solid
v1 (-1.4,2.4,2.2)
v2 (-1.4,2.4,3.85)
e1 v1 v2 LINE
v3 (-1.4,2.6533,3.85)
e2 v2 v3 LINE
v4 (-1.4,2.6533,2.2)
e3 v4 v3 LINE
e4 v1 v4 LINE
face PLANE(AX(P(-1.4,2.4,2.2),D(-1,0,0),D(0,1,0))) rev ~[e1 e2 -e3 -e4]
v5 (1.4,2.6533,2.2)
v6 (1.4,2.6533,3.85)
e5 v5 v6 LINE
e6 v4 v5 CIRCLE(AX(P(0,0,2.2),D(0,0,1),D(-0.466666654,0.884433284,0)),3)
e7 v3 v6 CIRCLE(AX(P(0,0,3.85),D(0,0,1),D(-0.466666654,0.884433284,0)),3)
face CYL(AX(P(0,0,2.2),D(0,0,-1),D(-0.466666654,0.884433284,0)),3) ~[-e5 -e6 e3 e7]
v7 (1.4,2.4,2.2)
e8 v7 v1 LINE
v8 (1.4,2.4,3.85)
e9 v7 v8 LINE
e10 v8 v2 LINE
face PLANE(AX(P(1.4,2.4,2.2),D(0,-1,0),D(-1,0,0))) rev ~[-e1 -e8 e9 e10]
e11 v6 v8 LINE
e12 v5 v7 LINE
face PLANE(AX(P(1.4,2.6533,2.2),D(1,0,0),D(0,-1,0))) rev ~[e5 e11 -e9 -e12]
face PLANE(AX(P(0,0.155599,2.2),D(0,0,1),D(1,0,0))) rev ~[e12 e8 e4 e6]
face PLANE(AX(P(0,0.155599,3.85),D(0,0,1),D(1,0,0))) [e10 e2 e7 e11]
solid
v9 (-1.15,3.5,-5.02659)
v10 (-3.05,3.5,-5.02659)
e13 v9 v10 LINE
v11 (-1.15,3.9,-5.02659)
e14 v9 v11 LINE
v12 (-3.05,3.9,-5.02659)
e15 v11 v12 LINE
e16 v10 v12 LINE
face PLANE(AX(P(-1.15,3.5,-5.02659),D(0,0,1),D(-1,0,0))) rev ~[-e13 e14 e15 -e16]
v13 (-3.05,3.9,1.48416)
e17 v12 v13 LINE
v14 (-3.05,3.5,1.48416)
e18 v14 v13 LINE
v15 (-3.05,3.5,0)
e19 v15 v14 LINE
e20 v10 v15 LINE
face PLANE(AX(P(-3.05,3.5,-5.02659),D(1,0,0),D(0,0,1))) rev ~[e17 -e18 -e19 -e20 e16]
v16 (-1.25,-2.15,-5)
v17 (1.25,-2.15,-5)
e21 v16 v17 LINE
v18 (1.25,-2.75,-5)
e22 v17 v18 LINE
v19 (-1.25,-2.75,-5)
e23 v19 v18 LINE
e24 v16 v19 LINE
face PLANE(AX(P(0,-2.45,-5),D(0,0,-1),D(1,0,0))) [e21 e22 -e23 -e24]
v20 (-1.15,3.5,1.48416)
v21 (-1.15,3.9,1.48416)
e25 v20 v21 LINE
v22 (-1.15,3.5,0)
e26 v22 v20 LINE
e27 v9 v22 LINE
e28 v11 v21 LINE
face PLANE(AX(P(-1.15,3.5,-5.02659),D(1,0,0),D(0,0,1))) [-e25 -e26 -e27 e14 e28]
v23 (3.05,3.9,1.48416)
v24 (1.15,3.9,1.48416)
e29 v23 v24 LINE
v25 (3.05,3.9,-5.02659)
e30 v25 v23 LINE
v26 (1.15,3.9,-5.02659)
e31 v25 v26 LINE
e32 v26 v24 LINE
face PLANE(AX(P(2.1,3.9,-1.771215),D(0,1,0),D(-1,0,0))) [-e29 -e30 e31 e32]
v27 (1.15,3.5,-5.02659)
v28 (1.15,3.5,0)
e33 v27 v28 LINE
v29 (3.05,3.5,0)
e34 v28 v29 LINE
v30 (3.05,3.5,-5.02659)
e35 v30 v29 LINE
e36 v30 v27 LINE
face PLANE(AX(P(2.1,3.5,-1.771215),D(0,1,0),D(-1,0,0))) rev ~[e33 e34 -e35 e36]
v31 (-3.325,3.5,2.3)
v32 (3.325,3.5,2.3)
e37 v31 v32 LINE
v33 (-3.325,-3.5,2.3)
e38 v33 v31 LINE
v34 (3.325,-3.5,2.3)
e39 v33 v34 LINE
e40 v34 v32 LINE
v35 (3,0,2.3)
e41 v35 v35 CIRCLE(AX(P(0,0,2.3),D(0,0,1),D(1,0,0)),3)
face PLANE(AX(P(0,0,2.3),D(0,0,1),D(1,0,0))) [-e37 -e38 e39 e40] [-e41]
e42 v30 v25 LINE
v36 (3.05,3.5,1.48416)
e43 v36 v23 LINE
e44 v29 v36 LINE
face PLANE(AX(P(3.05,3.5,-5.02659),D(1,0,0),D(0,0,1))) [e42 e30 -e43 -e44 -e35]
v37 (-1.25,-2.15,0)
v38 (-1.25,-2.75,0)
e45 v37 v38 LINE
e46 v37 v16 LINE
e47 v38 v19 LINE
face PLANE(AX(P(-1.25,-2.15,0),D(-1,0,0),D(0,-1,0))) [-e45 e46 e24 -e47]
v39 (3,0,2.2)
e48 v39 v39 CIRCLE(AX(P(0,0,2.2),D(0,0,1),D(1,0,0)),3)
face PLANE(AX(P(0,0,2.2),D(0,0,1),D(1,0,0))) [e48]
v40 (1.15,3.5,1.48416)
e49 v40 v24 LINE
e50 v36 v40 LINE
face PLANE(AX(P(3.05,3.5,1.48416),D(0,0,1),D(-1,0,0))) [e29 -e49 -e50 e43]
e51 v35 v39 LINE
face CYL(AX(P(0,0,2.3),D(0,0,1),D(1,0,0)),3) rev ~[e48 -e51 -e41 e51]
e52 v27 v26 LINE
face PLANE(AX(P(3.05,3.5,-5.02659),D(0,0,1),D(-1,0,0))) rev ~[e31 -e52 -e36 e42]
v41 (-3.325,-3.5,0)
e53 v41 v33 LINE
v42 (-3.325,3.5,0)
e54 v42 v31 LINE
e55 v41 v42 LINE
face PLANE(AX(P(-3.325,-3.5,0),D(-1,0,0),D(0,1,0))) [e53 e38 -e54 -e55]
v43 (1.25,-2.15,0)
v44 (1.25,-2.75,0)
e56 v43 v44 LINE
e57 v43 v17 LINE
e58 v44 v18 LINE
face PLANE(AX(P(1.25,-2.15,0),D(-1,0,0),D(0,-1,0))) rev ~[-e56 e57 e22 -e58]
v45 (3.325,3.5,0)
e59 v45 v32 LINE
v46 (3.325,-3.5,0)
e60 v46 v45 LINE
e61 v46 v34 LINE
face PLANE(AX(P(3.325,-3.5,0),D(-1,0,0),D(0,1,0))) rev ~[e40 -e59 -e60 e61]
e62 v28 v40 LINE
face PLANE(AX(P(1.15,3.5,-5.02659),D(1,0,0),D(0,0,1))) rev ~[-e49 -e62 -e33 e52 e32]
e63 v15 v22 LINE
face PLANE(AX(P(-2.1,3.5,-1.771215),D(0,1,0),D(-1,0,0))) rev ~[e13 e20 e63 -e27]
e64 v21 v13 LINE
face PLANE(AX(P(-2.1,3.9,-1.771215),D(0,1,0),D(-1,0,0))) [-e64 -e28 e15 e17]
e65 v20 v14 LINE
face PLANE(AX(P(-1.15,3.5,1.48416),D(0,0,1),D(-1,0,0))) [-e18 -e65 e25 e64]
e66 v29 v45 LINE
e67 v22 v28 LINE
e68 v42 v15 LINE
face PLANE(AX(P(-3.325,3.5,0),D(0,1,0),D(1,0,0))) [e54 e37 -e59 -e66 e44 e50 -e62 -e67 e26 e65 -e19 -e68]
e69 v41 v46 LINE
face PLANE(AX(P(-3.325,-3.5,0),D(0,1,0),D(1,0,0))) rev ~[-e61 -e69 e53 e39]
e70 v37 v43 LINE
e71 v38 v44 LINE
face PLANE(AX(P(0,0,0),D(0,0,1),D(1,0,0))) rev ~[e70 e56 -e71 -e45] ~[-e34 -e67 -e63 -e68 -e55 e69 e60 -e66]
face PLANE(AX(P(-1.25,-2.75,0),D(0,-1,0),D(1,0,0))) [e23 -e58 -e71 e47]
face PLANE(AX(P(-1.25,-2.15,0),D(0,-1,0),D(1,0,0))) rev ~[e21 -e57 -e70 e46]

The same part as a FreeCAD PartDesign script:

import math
import FreeCAD as App
import Part
import Sketcher

V = App.Vector
Q = App.Units.Quantity


def add_polygon(sketch, points):
    """Adds a closed chain of lines whose ends are joined by coincident constraints."""
    first, n = sketch.GeometryCount, len(points)
    for a, b in zip(points, points[1:] + points[:1]):
        sketch.addGeometry(Part.LineSegment(App.Vector(*a, 0), App.Vector(*b, 0)), False)
    for i in range(n):
        sketch.addConstraint(Sketcher.Constraint("Coincident", first + i, 2, first + (i + 1) % n, 1))

doc = App.newDocument("Part")
body = doc.addObject("PartDesign::Body", "Body")

# Sketch on XY plane
sketch1 = body.newObject("Sketcher::SketchObject", "Sketch")
sketch1.AttachmentSupport = (doc.getObject("XY_Plane"), [""])
sketch1.MapMode = "FlatFace"
add_polygon(sketch1, [(-3, 4), (-3, -4), (3, -4), (3, 4)])  # lines 0-3
sketch1.addConstraint(Sketcher.Constraint("Vertical", 0))
sketch1.addConstraint(Sketcher.Constraint("Horizontal", 1))
sketch1.addConstraint(Sketcher.Constraint("Vertical", 2))
sketch1.addConstraint(Sketcher.Constraint("Horizontal", 3))
sketch1.addConstraint(Sketcher.Constraint("Symmetric", 0, 2, 2, 2, -1, 1))
sketch1.addConstraint(Sketcher.Constraint("DistanceY", 0, 2, 0, 1, Q("7 mm")))
sketch1.addConstraint(Sketcher.Constraint("DistanceX", 1, 1, 1, 2, Q("6.65 mm")))
pad1 = body.newObject("PartDesign::Pad", "Pad")
pad1.Profile = sketch1
pad1.Length = 2.3

# Sketch on XY plane
sketch2 = body.newObject("Sketcher::SketchObject", "Sketch001")
sketch2.AttachmentSupport = (doc.getObject("XY_Plane"), [""])
sketch2.MapMode = "FlatFace"
sketch2.AttachmentOffset = App.Placement(V(0, 0, 2.3), App.Rotation())
sketch2.addGeometry(Part.Circle(V(0, 0, 0), V(0, 0, 1), 3), False)
sketch2.addConstraint(Sketcher.Constraint("Coincident", 0, 3, -1, 1))
sketch2.addConstraint(Sketcher.Constraint("Diameter", 0, Q("6 mm")))
pocket1 = body.newObject("PartDesign::Pocket", "Pocket")
pocket1.Profile = sketch2
pocket1.Length = 0.1

# Sketch on XY plane
sketch3 = body.newObject("Sketcher::SketchObject", "Sketch002")
sketch3.AttachmentSupport = (doc.getObject("XY_Plane"), [""])
sketch3.MapMode = "FlatFace"
add_polygon(sketch3, [(-1.2, -2.8), (-1.2, -2.1), (1.2, -2.1), (1.2, -2.8)])  # lines 0-3
sketch3.addConstraint(Sketcher.Constraint("Vertical", 0))
sketch3.addConstraint(Sketcher.Constraint("Horizontal", 1))
sketch3.addConstraint(Sketcher.Constraint("Vertical", 2))
sketch3.addConstraint(Sketcher.Constraint("Horizontal", 3))
sketch3.addConstraint(Sketcher.Constraint("DistanceX", 1, 1, 1, 2, Q("2.5 mm")))
sketch3.addConstraint(Sketcher.Constraint("DistanceY", 0, 1, 0, 2, Q("0.6 mm")))
sketch3.addConstraint(Sketcher.Constraint("DistanceX", 0, 2, -1, 1, Q("1.25 mm")))
sketch3.addConstraint(Sketcher.Constraint("DistanceY", 0, 2, -1, 1, Q("2.15 mm")))
pad2 = body.newObject("PartDesign::Pad", "Pad001")
pad2.Profile = sketch3
pad2.Length = 5
pad2.Reversed = True

# Sketch on XZ plane
sketch4 = body.newObject("Sketcher::SketchObject", "Sketch003")
sketch4.AttachmentSupport = (doc.getObject("XZ_Plane"), [""])
sketch4.MapMode = "FlatFace"
sketch4.AttachmentOffset = App.Placement(V(0, 0, -3.5), App.Rotation())
add_polygon(sketch4, [(-1.1, 1.5), (-1.1, -5), (-3, -5), (-3, 1.5)])  # lines 0-3
add_polygon(sketch4, [(3, 1.5), (3, -5), (1.1, -5), (1.1, 1.5)])  # lines 4-7
sketch4.addConstraint(Sketcher.Constraint("Vertical", 0))
sketch4.addConstraint(Sketcher.Constraint("Horizontal", 1))
sketch4.addConstraint(Sketcher.Constraint("Vertical", 2))
sketch4.addConstraint(Sketcher.Constraint("Horizontal", 3))
sketch4.addConstraint(Sketcher.Constraint("Vertical", 4))
sketch4.addConstraint(Sketcher.Constraint("Horizontal", 5))
sketch4.addConstraint(Sketcher.Constraint("Vertical", 6))
sketch4.addConstraint(Sketcher.Constraint("Horizontal", 7))
sketch4.addConstraint(Sketcher.Constraint("Symmetric", 1, 2, 4, 2, -2))
sketch4.addConstraint(Sketcher.Constraint("Symmetric", 3, 2, 6, 2, -2))
sketch4.addConstraint(Sketcher.Constraint("DistanceX", 1, 2, 1, 1, Q("1.9 mm")))
sketch4.addConstraint(Sketcher.Constraint("DistanceX", 0, 2, 4, 2, Q("4.2 mm")))
sketch4.addConstraint(Sketcher.Constraint("DistanceY", 0, 2, 0, 1, Q("6.510749 mm")))
sketch4.addConstraint(Sketcher.Constraint("DistanceY", 0, 2, -1, 1, Q("5.02659 mm")))
pad3 = body.newObject("PartDesign::Pad", "Pad002")
pad3.Profile = sketch4
pad3.Length = 0.4
pad3.Reversed = True
body2 = doc.addObject("PartDesign::Body", "Body001")

# Sketch on XY plane
sketch5 = body2.newObject("Sketcher::SketchObject", "Sketch004")
sketch5.AttachmentSupport = (doc.getObject("XY_Plane001"), [""])
sketch5.MapMode = "FlatFace"
sketch5.AttachmentOffset = App.Placement(V(0, 0, 2.2), App.Rotation())
sketch5.addGeometry(Part.LineSegment(V(-1.4, 2.4, 0), V(-1.4, 2.65, 0)), False)
sketch5.addGeometry(Part.ArcOfCircle(Part.Circle(V(0, 0, 0), V(0, 0, 1), 3), math.radians(118), math.radians(422)), False)
sketch5.addGeometry(Part.LineSegment(V(1.4, 2.65, 0), V(1.4, 2.4, 0)), False)
sketch5.addGeometry(Part.LineSegment(V(1.4, 2.4, 0), V(-1.4, 2.4, 0)), False)
sketch5.addConstraint(Sketcher.Constraint("Coincident", 0, 2, 1, 1))
sketch5.addConstraint(Sketcher.Constraint("Coincident", 1, 2, 2, 1))
sketch5.addConstraint(Sketcher.Constraint("Coincident", 2, 2, 3, 1))
sketch5.addConstraint(Sketcher.Constraint("Coincident", 3, 2, 0, 1))
sketch5.addConstraint(Sketcher.Constraint("Vertical", 0))
sketch5.addConstraint(Sketcher.Constraint("Vertical", 2))
sketch5.addConstraint(Sketcher.Constraint("Horizontal", 3))
sketch5.addConstraint(Sketcher.Constraint("Coincident", 1, 3, -1, 1))
sketch5.addConstraint(Sketcher.Constraint("Horizontal", 0, 2, 1, 2))
sketch5.addConstraint(Sketcher.Constraint("Radius", 1, Q("3 mm")))
sketch5.addConstraint(Sketcher.Constraint("DistanceX", 3, 2, 3, 1, Q("2.8 mm")))
sketch5.addConstraint(Sketcher.Constraint("DistanceY", -1, 1, 2, 2, Q("2.4 mm")))
pad4 = body2.newObject("PartDesign::Pad", "Pad003")
pad4.Profile = sketch5
pad4.Length = 1.65

doc.recompute()
